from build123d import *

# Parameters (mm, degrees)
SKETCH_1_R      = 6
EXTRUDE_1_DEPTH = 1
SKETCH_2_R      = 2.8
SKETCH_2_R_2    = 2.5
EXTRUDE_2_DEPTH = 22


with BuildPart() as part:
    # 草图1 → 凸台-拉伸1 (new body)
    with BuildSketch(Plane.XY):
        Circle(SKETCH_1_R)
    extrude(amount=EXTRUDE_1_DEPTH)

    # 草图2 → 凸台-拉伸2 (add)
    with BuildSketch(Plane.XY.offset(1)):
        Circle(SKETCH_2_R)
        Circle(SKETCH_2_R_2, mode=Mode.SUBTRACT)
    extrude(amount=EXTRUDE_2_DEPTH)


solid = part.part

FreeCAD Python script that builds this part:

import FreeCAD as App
import Part
import Sketcher
from FreeCAD import Vector
Q = App.Units.Quantity

doc = App.newDocument("Part")
body = doc.addObject("PartDesign::Body", "Body")

sketch1 = body.newObject("Sketcher::SketchObject", "Sketch")
sketch1.AttachmentSupport = (doc.getObject("XY_Plane"), [""])
sketch1.MapMode = "FlatFace"
sketch1.addGeometry(Part.Circle(Vector(0, 0, 0), Vector(0, 0, 1), 6), False)
sketch1.addConstraint(Sketcher.Constraint("Coincident", 0, 3, -1, 1))
sketch1.addConstraint(Sketcher.Constraint("Diameter", 0, Q("12 mm")))
pad1 = body.newObject("PartDesign::Pad", "Pad")
pad1.Profile = sketch1
pad1.Length = 1

sketch2 = body.newObject("Sketcher::SketchObject", "Sketch001")
sketch2.AttachmentSupport = (doc.getObject("XY_Plane"), [""])
sketch2.MapMode = "FlatFace"
sketch2.AttachmentOffset = App.Placement(Vector(0, 0, 1), App.Rotation())
sketch2.addGeometry(Part.Circle(Vector(0, 0, 0), Vector(0, 0, 1), 2.8), False)
sketch2.addGeometry(Part.Circle(Vector(0, 0, 0), Vector(0, 0, 1), 2.5), False)
sketch2.addConstraint(Sketcher.Constraint("Coincident", 0, 3, -1, 1))
sketch2.addConstraint(Sketcher.Constraint("Coincident", 1, 3, -1, 1))
sketch2.addConstraint(Sketcher.Constraint("Diameter", 1, Q("5 mm")))
sketch2.addConstraint(Sketcher.Constraint("Diameter", 0, Q("5.6 mm")))
pad2 = body.newObject("PartDesign::Pad", "Pad001")
pad2.Profile = sketch2
pad2.Length = 22

doc.recompute()
